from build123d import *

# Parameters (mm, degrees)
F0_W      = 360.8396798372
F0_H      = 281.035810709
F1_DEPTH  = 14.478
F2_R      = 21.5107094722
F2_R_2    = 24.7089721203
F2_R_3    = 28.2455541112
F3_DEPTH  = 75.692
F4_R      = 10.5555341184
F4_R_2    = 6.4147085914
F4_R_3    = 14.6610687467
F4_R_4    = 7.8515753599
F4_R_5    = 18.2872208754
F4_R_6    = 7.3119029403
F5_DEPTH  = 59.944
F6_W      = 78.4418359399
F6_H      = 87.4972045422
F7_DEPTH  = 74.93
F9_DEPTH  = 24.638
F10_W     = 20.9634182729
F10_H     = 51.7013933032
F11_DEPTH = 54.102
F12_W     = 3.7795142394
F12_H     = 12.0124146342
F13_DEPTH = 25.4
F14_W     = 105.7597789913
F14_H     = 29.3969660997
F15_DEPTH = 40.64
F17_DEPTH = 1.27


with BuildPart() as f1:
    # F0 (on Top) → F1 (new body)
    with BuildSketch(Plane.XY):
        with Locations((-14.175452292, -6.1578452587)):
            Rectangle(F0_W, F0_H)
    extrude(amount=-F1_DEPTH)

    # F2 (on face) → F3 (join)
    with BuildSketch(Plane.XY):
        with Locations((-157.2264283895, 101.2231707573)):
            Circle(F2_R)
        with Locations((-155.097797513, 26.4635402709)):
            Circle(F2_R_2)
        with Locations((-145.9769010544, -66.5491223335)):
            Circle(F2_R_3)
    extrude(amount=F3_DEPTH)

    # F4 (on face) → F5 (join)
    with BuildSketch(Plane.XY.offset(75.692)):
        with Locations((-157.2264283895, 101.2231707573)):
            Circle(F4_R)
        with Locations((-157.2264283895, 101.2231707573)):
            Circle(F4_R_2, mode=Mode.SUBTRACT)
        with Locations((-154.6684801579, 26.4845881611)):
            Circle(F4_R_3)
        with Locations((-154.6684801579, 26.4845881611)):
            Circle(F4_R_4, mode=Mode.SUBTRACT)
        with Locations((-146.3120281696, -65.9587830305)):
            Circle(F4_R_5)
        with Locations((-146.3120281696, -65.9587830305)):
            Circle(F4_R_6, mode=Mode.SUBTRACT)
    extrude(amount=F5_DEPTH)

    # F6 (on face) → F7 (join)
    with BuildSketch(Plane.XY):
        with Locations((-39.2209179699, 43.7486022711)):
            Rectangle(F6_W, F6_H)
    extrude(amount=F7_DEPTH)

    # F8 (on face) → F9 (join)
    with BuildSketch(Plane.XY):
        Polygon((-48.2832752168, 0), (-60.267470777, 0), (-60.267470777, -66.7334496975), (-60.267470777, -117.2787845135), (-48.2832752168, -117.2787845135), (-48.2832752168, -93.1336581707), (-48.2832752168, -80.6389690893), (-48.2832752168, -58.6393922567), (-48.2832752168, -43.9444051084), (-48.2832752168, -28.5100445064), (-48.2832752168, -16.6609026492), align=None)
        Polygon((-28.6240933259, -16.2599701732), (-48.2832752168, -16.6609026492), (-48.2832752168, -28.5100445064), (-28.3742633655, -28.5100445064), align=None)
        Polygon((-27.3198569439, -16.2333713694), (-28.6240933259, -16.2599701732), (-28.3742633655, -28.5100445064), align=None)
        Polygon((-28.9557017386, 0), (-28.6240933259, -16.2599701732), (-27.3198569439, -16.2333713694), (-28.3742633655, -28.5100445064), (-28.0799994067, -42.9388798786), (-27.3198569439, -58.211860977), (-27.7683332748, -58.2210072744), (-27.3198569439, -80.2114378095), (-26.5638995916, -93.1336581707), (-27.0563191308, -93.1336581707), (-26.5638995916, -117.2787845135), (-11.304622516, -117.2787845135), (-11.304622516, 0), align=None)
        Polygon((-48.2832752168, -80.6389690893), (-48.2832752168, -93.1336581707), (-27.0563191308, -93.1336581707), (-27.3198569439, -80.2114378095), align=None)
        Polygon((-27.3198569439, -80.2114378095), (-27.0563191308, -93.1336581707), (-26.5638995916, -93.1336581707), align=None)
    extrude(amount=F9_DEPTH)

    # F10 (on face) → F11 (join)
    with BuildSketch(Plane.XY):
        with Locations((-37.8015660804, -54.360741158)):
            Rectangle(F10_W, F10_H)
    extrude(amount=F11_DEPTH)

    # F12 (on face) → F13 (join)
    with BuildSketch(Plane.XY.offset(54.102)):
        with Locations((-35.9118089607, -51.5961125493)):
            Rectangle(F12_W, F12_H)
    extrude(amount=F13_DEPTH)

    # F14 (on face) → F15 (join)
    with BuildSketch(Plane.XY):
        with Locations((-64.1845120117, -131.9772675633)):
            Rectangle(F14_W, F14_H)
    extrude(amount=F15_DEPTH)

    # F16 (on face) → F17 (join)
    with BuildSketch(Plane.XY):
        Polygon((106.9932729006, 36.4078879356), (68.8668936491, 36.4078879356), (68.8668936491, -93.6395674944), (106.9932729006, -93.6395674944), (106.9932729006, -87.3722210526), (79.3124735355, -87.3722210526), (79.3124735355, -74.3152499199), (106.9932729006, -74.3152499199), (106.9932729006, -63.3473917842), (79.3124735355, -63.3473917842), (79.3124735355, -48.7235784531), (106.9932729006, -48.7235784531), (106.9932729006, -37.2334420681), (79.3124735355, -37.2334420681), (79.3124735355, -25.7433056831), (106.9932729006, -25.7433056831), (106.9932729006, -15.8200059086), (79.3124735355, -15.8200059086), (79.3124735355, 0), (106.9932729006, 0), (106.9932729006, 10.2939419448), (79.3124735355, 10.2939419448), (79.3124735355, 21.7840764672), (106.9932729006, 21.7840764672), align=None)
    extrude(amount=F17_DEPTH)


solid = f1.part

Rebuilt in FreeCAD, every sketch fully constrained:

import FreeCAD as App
import Part
import Sketcher
Q = App.Units.Quantity


def add_polygon(sketch, points):
    """Adds a closed chain of lines whose ends are joined by coincident constraints."""
    first, n = sketch.GeometryCount, len(points)
    for a, b in zip(points, points[1:] + points[:1]):
        sketch.addGeometry(Part.LineSegment(App.Vector(*a, 0), App.Vector(*b, 0)), False)
    for i in range(n):
        sketch.addConstraint(Sketcher.Constraint("Coincident", first + i, 2, first + (i + 1) % n, 1))

doc = App.newDocument("Part")
params = doc.addObject("Spreadsheet::Sheet", "Params")
for row, (alias, value) in enumerate([
    ("pad1_length", "0.57 in"),
    ("pad2_length", "2.98 in"),
    ("pad3_length", "2.36 in"),
    ("pad4_length", "2.95 in"),
    ("pad5_length", "0.97 in"),
    ("pad6_length", "2.13 in"),
    ("pad7_length", "1 in"),
    ("pad8_length", "1.6 in"),
    ("pad9_length", "0.05 in"),
], start=1):
    params.set(f"A{row}", alias)
    params.set(f"B{row}", "=" + value)
    params.setAlias(f"B{row}", alias)

body = doc.addObject("PartDesign::Body", "Body")

# Sketch on XY plane
sketch1 = body.newObject("Sketcher::SketchObject", "Sketch")
sketch1.AttachmentSupport = (doc.getObject("XY_Plane"), [""])
sketch1.MapMode = "FlatFace"
add_polygon(sketch1, [(-195, 134), (-195, -147), (166, -147), (166, 134)])  # lines 0-3
sketch1.addConstraint(Sketcher.Constraint("Vertical", 0))
sketch1.addConstraint(Sketcher.Constraint("Horizontal", 1))
sketch1.addConstraint(Sketcher.Constraint("Vertical", 2))
sketch1.addConstraint(Sketcher.Constraint("Horizontal", 3))
sketch1.addConstraint(Sketcher.Constraint("DistanceX", 1, 1, 1, 2, Q("360.83968 mm")))
sketch1.addConstraint(Sketcher.Constraint("DistanceY", 0, 2, 0, 1, Q("281.035811 mm")))
sketch1.addConstraint(Sketcher.Constraint("DistanceY", 0, 2, -1, 1, Q("146.675751 mm")))
sketch1.addConstraint(Sketcher.Constraint("DistanceX", 0, 2, -1, 1, Q("194.595292 mm")))
pad1 = body.newObject("PartDesign::Pad", "Pad")
pad1.Profile = sketch1
pad1.setExpression("Length", "Params.pad1_length")
pad1.Reversed = True

# Sketch on XY plane
sketch2 = body.newObject("Sketcher::SketchObject", "Sketch001")
sketch2.AttachmentSupport = (doc.getObject("XY_Plane"), [""])
sketch2.MapMode = "FlatFace"
sketch2.addGeometry(Part.Circle(App.Vector(-157, 101, 0), App.Vector(0, 0, 1), 22), False)
sketch2.addGeometry(Part.Circle(App.Vector(-155, 26, 0), App.Vector(0, 0, 1), 25), False)
sketch2.addGeometry(Part.Circle(App.Vector(-146, -67, 0), App.Vector(0, 0, 1), 28), False)
sketch2.addConstraint(Sketcher.Constraint("Diameter", 0, Q("43.021419 mm")))
sketch2.addConstraint(Sketcher.Constraint("Diameter", 2, Q("56.491108 mm")))
sketch2.addConstraint(Sketcher.Constraint("Diameter", 1, Q("49.417944 mm")))
sketch2.addConstraint(Sketcher.Constraint("DistanceX", 2, 3, -1, 1, Q("145.976901 mm")))
sketch2.addConstraint(Sketcher.Constraint("DistanceX", 0, 3, -1, 1, Q("157.226428 mm")))
sketch2.addConstraint(Sketcher.Constraint("DistanceY", -1, 1, 0, 3, Q("101.223171 mm")))
sketch2.addConstraint(Sketcher.Constraint("DistanceY", -1, 1, 1, 3, Q("26.46354 mm")))
sketch2.addConstraint(Sketcher.Constraint("DistanceX", 0, 3, 1, 3, Q("2.128631 mm")))
sketch2.addConstraint(Sketcher.Constraint("DistanceY", 2, 3, -1, 1, Q("66.549122 mm")))
pad2 = body.newObject("PartDesign::Pad", "Pad001")
pad2.Profile = sketch2
pad2.setExpression("Length", "Params.pad2_length")

# Sketch on XY plane
sketch3 = body.newObject("Sketcher::SketchObject", "Sketch002")
sketch3.AttachmentSupport = (doc.getObject("XY_Plane"), [""])
sketch3.MapMode = "FlatFace"
sketch3.AttachmentOffset = App.Placement(App.Vector(0, 0, 2.98 * 25.4), App.Rotation())
sketch3.addGeometry(Part.Circle(App.Vector(-157, 101, 0), App.Vector(0, 0, 1), 11), False)
sketch3.addGeometry(Part.Circle(App.Vector(-157, 101, 0), App.Vector(0, 0, 1), 6), False)
sketch3.addGeometry(Part.Circle(App.Vector(-155, 26, 0), App.Vector(0, 0, 1), 15), False)
sketch3.addGeometry(Part.Circle(App.Vector(-155, 26, 0), App.Vector(0, 0, 1), 8), False)
sketch3.addGeometry(Part.Circle(App.Vector(-146, -66, 0), App.Vector(0, 0, 1), 18), False)
sketch3.addGeometry(Part.Circle(App.Vector(-146, -66, 0), App.Vector(0, 0, 1), 7), False)
sketch3.addConstraint(Sketcher.Constraint("Coincident", 1, 3, 0, 3))
sketch3.addConstraint(Sketcher.Constraint("Coincident", 3, 3, 2, 3))
sketch3.addConstraint(Sketcher.Constraint("Coincident", 5, 3, 4, 3))
sketch3.addConstraint(Sketcher.Constraint("Diameter", 0, Q("21.111068 mm")))
sketch3.addConstraint(Sketcher.Constraint("Diameter", 3, Q("15.703151 mm")))
sketch3.addConstraint(Sketcher.Constraint("Diameter", 4, Q("36.574442 mm")))
sketch3.addConstraint(Sketcher.Constraint("Diameter", 1, Q("12.829417 mm")))
sketch3.addConstraint(Sketcher.Constraint("Diameter", 2, Q("29.322137 mm")))
sketch3.addConstraint(Sketcher.Constraint("Diameter", 5, Q("14.623806 mm")))
sketch3.addConstraint(Sketcher.Constraint("DistanceX", 0, 3, 4, 3, Q("10.9144 mm")))
sketch3.addConstraint(Sketcher.Constraint("DistanceX", 0, 3, -1, 1, Q("157.226428 mm")))
sketch3.addConstraint(Sketcher.Constraint("DistanceY", -1, 1, 0, 3, Q("101.223171 mm")))
sketch3.addConstraint(Sketcher.Constraint("DistanceX", 2, 3, -1, 1, Q("154.66848 mm")))
sketch3.addConstraint(Sketcher.Constraint("DistanceY", -1, 1, 2, 3, Q("26.484588 mm")))
sketch3.addConstraint(Sketcher.Constraint("DistanceY", 4, 3, 2, 3, Q("92.443371 mm")))
pad3 = body.newObject("PartDesign::Pad", "Pad002")
pad3.Profile = sketch3
pad3.setExpression("Length", "Params.pad3_length")

# Sketch on XY plane
sketch4 = body.newObject("Sketcher::SketchObject", "Sketch003")
sketch4.AttachmentSupport = (doc.getObject("XY_Plane"), [""])
sketch4.MapMode = "FlatFace"
add_polygon(sketch4, [(-78, 87), (-78, 0), (0, 0), (0, 87)])  # lines 0-3
sketch4.addConstraint(Sketcher.Constraint("Vertical", 0))
sketch4.addConstraint(Sketcher.Constraint("Horizontal", 1))
sketch4.addConstraint(Sketcher.Constraint("Vertical", 2))
sketch4.addConstraint(Sketcher.Constraint("Horizontal", 3))
sketch4.addConstraint(Sketcher.Constraint("Coincident", 1, 2, -1, 1))
sketch4.addConstraint(Sketcher.Constraint("DistanceX", 1, 1, 1, 2, Q("78.441836 mm")))
sketch4.addConstraint(Sketcher.Constraint("DistanceY", 0, 2, 0, 1, Q("87.497205 mm")))
pad4 = body.newObject("PartDesign::Pad", "Pad003")
pad4.Profile = sketch4
pad4.setExpression("Length", "Params.pad4_length")

# Sketch on XY plane
sketch5 = body.newObject("Sketcher::SketchObject", "Sketch004")
sketch5.AttachmentSupport = (doc.getObject("XY_Plane"), [""])
sketch5.MapMode = "FlatFace"
add_polygon(sketch5, [(-48.283275, -93.133658), (-27.056319, -93.133658), (-26.5639, -117.278785), (-11.304623, -117.278785), (-11.304623, 0), (-28.955702, 0), (-28.624093, -16.25997), (-48.283275, -16.660903), (-48.283275, 0), (-60.267471, 0), (-60.267471, -117.278785), (-48.283275, -117.278785)])  # lines 0-11
add_polygon(sketch5, [(-27.768333, -58.221007), (-27.319857, -80.211438), (-48.283275, -80.638969), (-48.283275, -28.510045), (-28.374263, -28.510045), (-28.079999, -42.93888), (-27.319857, -58.211861)])  # lines 12-18
sketch5.addConstraint(Sketcher.Constraint("Horizontal", 0))
sketch5.addConstraint(Sketcher.Constraint("Horizontal", 2))
sketch5.addConstraint(Sketcher.Constraint("Vertical", 3))
sketch5.addConstraint(Sketcher.Constraint("Horizontal", 4))
sketch5.addConstraint(Sketcher.Constraint("Vertical", 7))
sketch5.addConstraint(Sketcher.Constraint("Horizontal", 8))
sketch5.addConstraint(Sketcher.Constraint("Vertical", 9))
sketch5.addConstraint(Sketcher.Constraint("Horizontal", 10))
sketch5.addConstraint(Sketcher.Constraint("Vertical", 11))
sketch5.addConstraint(Sketcher.Constraint("Vertical", 14))
sketch5.addConstraint(Sketcher.Constraint("Horizontal", 15))
sketch5.addConstraint(Sketcher.Constraint("PointOnObject", 3, 2, -1))
sketch5.addConstraint(Sketcher.Constraint("PointOnObject", 7, 2, -1))
sketch5.addConstraint(Sketcher.Constraint("DistanceX", 4, 2, 4, 1, Q("17.651079 mm")))
sketch5.addConstraint(Sketcher.Constraint("DistanceX", 15, 1, 15, 2, Q("19.909012 mm")))
sketch5.addConstraint(Sketcher.Constraint("DistanceX", 1, 2, -1, 1, Q("26.5639 mm")))
sketch5.addConstraint(Sketcher.Constraint("DistanceX", 4, 2, -1, 1, Q("28.955702 mm")))
sketch5.addConstraint(Sketcher.Constraint("DistanceX", 16, 2, -1, 1, Q("28.079999 mm")))
sketch5.addConstraint(Sketcher.Constraint("Distance", 5, Q("16.263351 mm")))
sketch5.addConstraint(Sketcher.Constraint("Distance", 6, Q("19.66327 mm")))
sketch5.addConstraint(Sketcher.Constraint("Distance", 18, Q("0.44857 mm")))
sketch5.addConstraint(Sketcher.Constraint("DistanceX", 0, 1, 0, 2, Q("21.226956 mm")))
sketch5.addConstraint(Sketcher.Constraint("DistanceX", 8, 2, 8, 1, Q("11.984196 mm")))
sketch5.addConstraint(Sketcher.Constraint("DistanceX", 10, 1, 10, 2, Q("11.984196 mm")))
sketch5.addConstraint(Sketcher.Constraint("DistanceY", 3, 1, 3, 2, Q("117.278785 mm")))
sketch5.addConstraint(Sketcher.Constraint("DistanceY", 7, 1, 7, 2, Q("16.660903 mm")))
sketch5.addConstraint(Sketcher.Constraint("DistanceY", 9, 2, 9, 1, Q("117.278785 mm")))
sketch5.addConstraint(Sketcher.Constraint("DistanceY", 11, 1, 11, 2, Q("24.145126 mm")))
sketch5.addConstraint(Sketcher.Constraint("DistanceY", 14, 1, 14, 2, Q("52.128925 mm")))
sketch5.addConstraint(Sketcher.Constraint("DistanceX", 0, 2, -1, 1, Q("27.056319 mm")))
sketch5.addConstraint(Sketcher.Constraint("DistanceY", 13, 2, -1, 1, Q("80.638969 mm")))
sketch5.addConstraint(Sketcher.Constraint("DistanceY", 16, 2, -1, 1, Q("42.93888 mm")))
sketch5.addConstraint(Sketcher.Constraint("DistanceY", 17, 2, -1, 1, Q("58.211861 mm")))
sketch5.addConstraint(Sketcher.Constraint("DistanceY", 0, 2, 12, 2, Q("12.92222 mm")))
sketch5.addConstraint(Sketcher.Constraint("DistanceX", 11, 2, 12, 2, Q("20.963418 mm")))
sketch5.addConstraint(Sketcher.Constraint("DistanceX", 13, 2, 12, 2, Q("20.963418 mm")))
sketch5.addConstraint(Sketcher.Constraint("DistanceX", 13, 2, 17, 2, Q("20.963418 mm")))
sketch5.addConstraint(Sketcher.Constraint("DistanceY", 12, 2, 18, 2, Q("21.990431 mm")))
pad5 = body.newObject("PartDesign::Pad", "Pad004")
pad5.Profile = sketch5
pad5.setExpression("Length", "Params.pad5_length")

# Sketch on XY plane
sketch6 = body.newObject("Sketcher::SketchObject", "Sketch005")
sketch6.AttachmentSupport = (doc.getObject("XY_Plane"), [""])
sketch6.MapMode = "FlatFace"
add_polygon(sketch6, [(-48, -29), (-48, -80), (-27, -80), (-27, -29)])  # lines 0-3
sketch6.addConstraint(Sketcher.Constraint("Vertical", 0))
sketch6.addConstraint(Sketcher.Constraint("Horizontal", 1))
sketch6.addConstraint(Sketcher.Constraint("Vertical", 2))
sketch6.addConstraint(Sketcher.Constraint("Horizontal", 3))
sketch6.addConstraint(Sketcher.Constraint("DistanceX", 1, 1, 1, 2, Q("20.963418 mm")))
sketch6.addConstraint(Sketcher.Constraint("DistanceY", 0, 2, 0, 1, Q("51.701393 mm")))
sketch6.addConstraint(Sketcher.Constraint("DistanceX", 0, 2, -1, 1, Q("48.283275 mm")))
sketch6.addConstraint(Sketcher.Constraint("DistanceY", 0, 2, -1, 1, Q("80.211438 mm")))
pad6 = body.newObject("PartDesign::Pad", "Pad005")
pad6.Profile = sketch6
pad6.setExpression("Length", "Params.pad6_length")

# Sketch on XY plane
sketch7 = body.newObject("Sketcher::SketchObject", "Sketch006")
sketch7.AttachmentSupport = (doc.getObject("XY_Plane"), [""])
sketch7.MapMode = "FlatFace"
sketch7.AttachmentOffset = App.Placement(App.Vector(0, 0, 2.13 * 25.4), App.Rotation())
add_polygon(sketch7, [(-37.8, -45.6), (-37.8, -57.6), (-34, -57.6), (-34, -45.6)])  # lines 0-3
sketch7.addConstraint(Sketcher.Constraint("Vertical", 0))
sketch7.addConstraint(Sketcher.Constraint("Horizontal", 1))
sketch7.addConstraint(Sketcher.Constraint("Vertical", 2))
sketch7.addConstraint(Sketcher.Constraint("Horizontal", 3))
sketch7.addConstraint(Sketcher.Constraint("DistanceX", 1, 1, 1, 2, Q("3.779514 mm")))
sketch7.addConstraint(Sketcher.Constraint("DistanceY", 0, 2, 0, 1, Q("12.012415 mm")))
sketch7.addConstraint(Sketcher.Constraint("DistanceY", 0, 2, -1, 1, Q("57.60232 mm")))
sketch7.addConstraint(Sketcher.Constraint("DistanceX", 1, 2, -1, 1, Q("34.022052 mm")))
pad7 = body.newObject("PartDesign::Pad", "Pad006")
pad7.Profile = sketch7
pad7.setExpression("Length", "Params.pad7_length")

# Sketch on XY plane
sketch8 = body.newObject("Sketcher::SketchObject", "Sketch007")
sketch8.AttachmentSupport = (doc.getObject("XY_Plane"), [""])
sketch8.MapMode = "FlatFace"
add_polygon(sketch8, [(-117, -117), (-117, -147), (-11, -147), (-11, -117)])  # lines 0-3
sketch8.addConstraint(Sketcher.Constraint("Vertical", 0))
sketch8.addConstraint(Sketcher.Constraint("Horizontal", 1))
sketch8.addConstraint(Sketcher.Constraint("Vertical", 2))
sketch8.addConstraint(Sketcher.Constraint("Horizontal", 3))
sketch8.addConstraint(Sketcher.Constraint("DistanceX", 1, 1, 1, 2, Q("105.759779 mm")))
sketch8.addConstraint(Sketcher.Constraint("DistanceX", 0, 2, -1, 1, Q("117.064402 mm")))
sketch8.addConstraint(Sketcher.Constraint("DistanceY", 0, 2, 0, 1, Q("29.396966 mm")))
sketch8.addConstraint(Sketcher.Constraint("DistanceY", 0, 2, -1, 1, Q("146.675751 mm")))
pad8 = body.newObject("PartDesign::Pad", "Pad007")
pad8.Profile = sketch8
pad8.setExpression("Length", "Params.pad8_length")

# Sketch on XY plane
sketch9 = body.newObject("Sketcher::SketchObject", "Sketch008")
sketch9.AttachmentSupport = (doc.getObject("XY_Plane"), [""])
sketch9.MapMode = "FlatFace"
add_polygon(sketch9, [(107, 36), (69, 36), (69, -94), (107, -94), (107, -87), (79, -87), (79, -74), (107, -74), (107, -63), (79, -63), (79, -49), (107, -49), (107, -37), (79, -37), (79, -26), (107, -26), (107, -16), (79, -16), (79, 0), (107, 0), (107, 10), (79, 10), (79, 22), (107, 22)])  # lines 0-23
sketch9.addConstraint(Sketcher.Constraint("Horizontal", 0))
sketch9.addConstraint(Sketcher.Constraint("Vertical", 1))
sketch9.addConstraint(Sketcher.Constraint("Horizontal", 2))
sketch9.addConstraint(Sketcher.Constraint("Vertical", 3))
sketch9.addConstraint(Sketcher.Constraint("Horizontal", 4))
sketch9.addConstraint(Sketcher.Constraint("Vertical", 5))
sketch9.addConstraint(Sketcher.Constraint("Horizontal", 6))
sketch9.addConstraint(Sketcher.Constraint("Vertical", 7))
sketch9.addConstraint(Sketcher.Constraint("Horizontal", 8))
sketch9.addConstraint(Sketcher.Constraint("Vertical", 9))
sketch9.addConstraint(Sketcher.Constraint("Horizontal", 10))
sketch9.addConstraint(Sketcher.Constraint("Vertical", 11))
sketch9.addConstraint(Sketcher.Constraint("Horizontal", 12))
sketch9.addConstraint(Sketcher.Constraint("Vertical", 13))
sketch9.addConstraint(Sketcher.Constraint("Horizontal", 14))
sketch9.addConstraint(Sketcher.Constraint("Vertical", 15))
sketch9.addConstraint(Sketcher.Constraint("Horizontal", 16))
sketch9.addConstraint(Sketcher.Constraint("Vertical", 17))
sketch9.addConstraint(Sketcher.Constraint("Horizontal", 18))
sketch9.addConstraint(Sketcher.Constraint("Vertical", 19))
sketch9.addConstraint(Sketcher.Constraint("Horizontal", 20))
sketch9.addConstraint(Sketcher.Constraint("Vertical", 21))
sketch9.addConstraint(Sketcher.Constraint("Horizontal", 22))
sketch9.addConstraint(Sketcher.Constraint("Vertical", 23))
sketch9.addConstraint(Sketcher.Constraint("PointOnObject", 17, 2, -1))
sketch9.addConstraint(Sketcher.Constraint("Vertical", 3, 2, 6, 2))
sketch9.addConstraint(Sketcher.Constraint("Vertical", 5, 2, 8, 2))
sketch9.addConstraint(Sketcher.Constraint("Vertical", 7, 2, 10, 2))
sketch9.addConstraint(Sketcher.Constraint("Vertical", 9, 2, 12, 2))
sketch9.addConstraint(Sketcher.Constraint("Vertical", 11, 2, 14, 2))
sketch9.addConstraint(Sketcher.Constraint("Vertical", 13, 2, 16, 2))
sketch9.addConstraint(Sketcher.Constraint("Vertical", 15, 2, 18, 2))
sketch9.addConstraint(Sketcher.Constraint("Vertical", 17, 2, 20, 2))
sketch9.addConstraint(Sketcher.Constraint("Vertical", 19, 2, 22, 2))
sketch9.addConstraint(Sketcher.Constraint("Equal", 11, 13))
sketch9.addConstraint(Sketcher.Constraint("Equal", 13, 21))
sketch9.addConstraint(Sketcher.Constraint("Equal", 9, 23))
sketch9.addConstraint(Sketcher.Constraint("DistanceX", 4, 2, 4, 1, Q("27.680799 mm")))
sketch9.addConstraint(Sketcher.Constraint("DistanceY", 15, 1, 15, 2, Q("9.9233 mm")))
sketch9.addConstraint(Sketcher.Constraint("DistanceY", 1, 2, 5, 2, Q("0.7607999 in")))
sketch9.addConstraint(Sketcher.Constraint("DistanceY", 4, 2, 9, 2, Q("1.5216001 in")))
sketch9.addConstraint(Sketcher.Constraint("DistanceX", 0, 2, 0, 1, Q("38.126379 mm")))
sketch9.addConstraint(Sketcher.Constraint("DistanceY", 5, 1, 5, 2, Q("13.056971 mm")))
sketch9.addConstraint(Sketcher.Constraint("DistanceY", 7, 1, 7, 2, Q("10.967858 mm")))
sketch9.addConstraint(Sketcher.Constraint("DistanceY", 19, 1, 19, 2, Q("10.293942 mm")))
sketch9.addConstraint(Sketcher.Constraint("DistanceY", 1, 2, 1, 1, Q("130.047455 mm")))
sketch9.addConstraint(Sketcher.Constraint("DistanceY", 11, 1, 11, 2, Q("11.490136 mm")))
sketch9.addConstraint(Sketcher.Constraint("DistanceX", -1, 1, 0, 2, Q("68.866894 mm")))
pad9 = body.newObject("PartDesign::Pad", "Pad008")
pad9.Profile = sketch9
pad9.setExpression("Length", "Params.pad9_length")

doc.recompute()
